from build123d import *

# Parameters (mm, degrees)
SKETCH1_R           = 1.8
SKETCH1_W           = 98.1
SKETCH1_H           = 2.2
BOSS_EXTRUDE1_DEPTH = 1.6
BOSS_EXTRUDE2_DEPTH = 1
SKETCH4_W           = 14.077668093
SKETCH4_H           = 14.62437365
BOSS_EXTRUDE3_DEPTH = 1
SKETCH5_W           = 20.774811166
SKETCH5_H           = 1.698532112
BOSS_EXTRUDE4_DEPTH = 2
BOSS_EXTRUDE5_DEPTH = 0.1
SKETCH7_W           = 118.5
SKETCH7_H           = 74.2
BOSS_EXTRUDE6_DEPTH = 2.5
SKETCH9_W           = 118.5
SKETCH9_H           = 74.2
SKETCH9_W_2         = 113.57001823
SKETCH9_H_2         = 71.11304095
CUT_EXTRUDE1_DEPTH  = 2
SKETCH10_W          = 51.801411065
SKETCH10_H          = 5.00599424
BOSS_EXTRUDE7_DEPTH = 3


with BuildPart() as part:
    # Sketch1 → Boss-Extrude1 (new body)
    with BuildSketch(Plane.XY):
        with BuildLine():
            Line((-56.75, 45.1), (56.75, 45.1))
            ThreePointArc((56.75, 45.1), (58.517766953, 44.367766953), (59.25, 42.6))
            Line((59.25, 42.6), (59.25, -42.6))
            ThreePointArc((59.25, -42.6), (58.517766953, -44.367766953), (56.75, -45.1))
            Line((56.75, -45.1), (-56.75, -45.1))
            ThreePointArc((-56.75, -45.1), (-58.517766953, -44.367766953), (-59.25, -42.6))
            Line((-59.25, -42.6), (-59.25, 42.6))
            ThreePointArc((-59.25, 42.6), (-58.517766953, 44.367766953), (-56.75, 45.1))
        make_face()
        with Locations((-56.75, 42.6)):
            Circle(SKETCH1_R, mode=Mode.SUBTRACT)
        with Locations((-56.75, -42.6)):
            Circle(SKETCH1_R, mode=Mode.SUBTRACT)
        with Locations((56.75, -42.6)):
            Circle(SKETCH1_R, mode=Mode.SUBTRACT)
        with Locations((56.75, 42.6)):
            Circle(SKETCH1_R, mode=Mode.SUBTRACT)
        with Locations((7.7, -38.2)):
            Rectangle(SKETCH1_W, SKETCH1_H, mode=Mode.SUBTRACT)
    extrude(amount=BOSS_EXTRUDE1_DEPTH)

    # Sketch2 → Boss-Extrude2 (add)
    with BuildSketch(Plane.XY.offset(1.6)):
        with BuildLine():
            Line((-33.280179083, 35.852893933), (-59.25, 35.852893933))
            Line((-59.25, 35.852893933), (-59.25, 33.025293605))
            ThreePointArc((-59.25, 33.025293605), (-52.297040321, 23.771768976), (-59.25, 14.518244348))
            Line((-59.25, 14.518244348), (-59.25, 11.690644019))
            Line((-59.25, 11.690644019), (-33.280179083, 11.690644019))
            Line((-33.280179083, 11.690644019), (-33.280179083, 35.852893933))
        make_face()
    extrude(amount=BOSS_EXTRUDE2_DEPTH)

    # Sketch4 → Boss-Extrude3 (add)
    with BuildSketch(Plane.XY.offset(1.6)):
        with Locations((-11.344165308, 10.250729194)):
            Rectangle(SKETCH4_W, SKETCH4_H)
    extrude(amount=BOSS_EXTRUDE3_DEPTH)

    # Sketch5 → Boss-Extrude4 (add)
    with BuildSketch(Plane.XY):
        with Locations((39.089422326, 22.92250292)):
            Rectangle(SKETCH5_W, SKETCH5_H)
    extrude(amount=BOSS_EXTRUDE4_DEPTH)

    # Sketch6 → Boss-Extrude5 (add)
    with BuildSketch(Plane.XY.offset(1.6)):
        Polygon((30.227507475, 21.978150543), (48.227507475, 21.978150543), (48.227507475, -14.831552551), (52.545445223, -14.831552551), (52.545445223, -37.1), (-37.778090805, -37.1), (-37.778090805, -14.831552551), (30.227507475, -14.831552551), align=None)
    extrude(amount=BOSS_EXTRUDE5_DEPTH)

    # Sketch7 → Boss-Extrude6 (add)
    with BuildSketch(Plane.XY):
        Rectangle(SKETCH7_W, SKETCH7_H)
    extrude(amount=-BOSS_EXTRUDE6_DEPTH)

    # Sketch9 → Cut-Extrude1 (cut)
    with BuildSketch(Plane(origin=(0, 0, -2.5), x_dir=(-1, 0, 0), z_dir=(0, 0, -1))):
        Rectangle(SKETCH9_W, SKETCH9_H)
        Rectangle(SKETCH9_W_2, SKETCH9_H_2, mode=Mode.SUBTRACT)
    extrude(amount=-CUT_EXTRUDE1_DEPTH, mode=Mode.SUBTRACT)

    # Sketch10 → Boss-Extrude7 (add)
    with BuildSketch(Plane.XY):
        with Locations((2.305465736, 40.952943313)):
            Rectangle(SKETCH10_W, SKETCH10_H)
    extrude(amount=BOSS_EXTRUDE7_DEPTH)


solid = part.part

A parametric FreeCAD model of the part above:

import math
import FreeCAD as App
import Part
import Sketcher

V = App.Vector


def add_polygon(sketch, points):
    """Adds a closed chain of lines whose ends are joined by coincident constraints."""
    first, n = sketch.GeometryCount, len(points)
    for a, b in zip(points, points[1:] + points[:1]):
        sketch.addGeometry(Part.LineSegment(App.Vector(*a, 0), App.Vector(*b, 0)), False)
    for i in range(n):
        sketch.addConstraint(Sketcher.Constraint("Coincident", first + i, 2, first + (i + 1) % n, 1))

doc = App.newDocument("Part")
body = doc.addObject("PartDesign::Body", "Body")

sketch1 = body.newObject("Sketcher::SketchObject", "Sketch")
sketch1.AttachmentSupport = (doc.getObject("XY_Plane"), [""])
sketch1.MapMode = "FlatFace"
sketch1.addGeometry(Part.LineSegment(V(56.75, 45.1, 0), V(-56.75, 45.1, 0)), False)
sketch1.addGeometry(Part.ArcOfCircle(Part.Circle(V(-56.75, 42.6, 0), V(0, 0, 1), 2.5), math.radians(90), math.radians(180)), False)
sketch1.addGeometry(Part.LineSegment(V(-59.25, 42.6, 0), V(-59.25, -42.6, 0)), False)
sketch1.addGeometry(Part.ArcOfCircle(Part.Circle(V(-56.75, -42.6, 0), V(0, 0, 1), 2.5), math.radians(180), math.radians(270)), False)
sketch1.addGeometry(Part.LineSegment(V(-56.75, -45.1, 0), V(56.75, -45.1, 0)), False)
sketch1.addGeometry(Part.ArcOfCircle(Part.Circle(V(56.75, -42.6, 0), V(0, 0, 1), 2.5), math.radians(-90), math.radians(0)), False)
sketch1.addGeometry(Part.LineSegment(V(59.25, -42.6, 0), V(59.25, 42.6, 0)), False)
sketch1.addGeometry(Part.ArcOfCircle(Part.Circle(V(56.75, 42.6, 0), V(0, 0, 1), 2.5), math.radians(0), math.radians(90)), False)
sketch1.addGeometry(Part.Circle(V(56.75, -42.6, 0), V(0, 0, 1), 1.8), False)
add_polygon(sketch1, [(-41.35, -39.3), (-41.35, -37.1), (56.75, -37.1), (56.75, -39.3)])
sketch1.addGeometry(Part.Circle(V(-56.75, -42.6, 0), V(0, 0, 1), 1.8), False)
sketch1.addGeometry(Part.Circle(V(56.75, 42.6, 0), V(0, 0, 1), 1.8), False)
sketch1.addGeometry(Part.Circle(V(-56.75, 42.6, 0), V(0, 0, 1), 1.8), False)
sketch1.addConstraint([
    Sketcher.Constraint("Tangent", 0, 2, 1, 1),
    Sketcher.Constraint("Tangent", 1, 2, 2, 1),
    Sketcher.Constraint("Tangent", 2, 2, 3, 1),
    Sketcher.Constraint("Tangent", 3, 2, 4, 1),
    Sketcher.Constraint("Tangent", 4, 2, 5, 1),
    Sketcher.Constraint("Tangent", 5, 2, 6, 1),
    Sketcher.Constraint("Tangent", 6, 2, 7, 1),
    Sketcher.Constraint("Tangent", 7, 2, 0, 1),
    Sketcher.Constraint("Horizontal", 0),
    Sketcher.Constraint("Vertical", 2),
    Sketcher.Constraint("Horizontal", 4),
    Sketcher.Constraint("Vertical", 6),
    Sketcher.Constraint("Vertical", 9),
    Sketcher.Constraint("Horizontal", 10),
    Sketcher.Constraint("Vertical", 11),
    Sketcher.Constraint("Horizontal", 12),
    Sketcher.Constraint("Coincident", 8, 3, 5, 3),
    Sketcher.Constraint("Coincident", 13, 3, 3, 3),
    Sketcher.Constraint("Coincident", 14, 3, 7, 3),
    Sketcher.Constraint("Coincident", 15, 3, 1, 3),
    Sketcher.Constraint("Equal", 1, 3),
    Sketcher.Constraint("Equal", 3, 5),
    Sketcher.Constraint("Equal", 5, 7),
    Sketcher.Constraint("Equal", 8, 13),
    Sketcher.Constraint("Equal", 13, 14),
    Sketcher.Constraint("Equal", 14, 15),
    Sketcher.Constraint("Symmetric", 1, 3, 5, 3, -1, 1),
    Sketcher.Constraint("Vertical", 7, 2, 10, 2),
    Sketcher.Constraint("Diameter", 8, 3.6),
    Sketcher.Constraint("Radius", 1, 2.5),
    Sketcher.Constraint("DistanceX", 0, 2, 0, 1, 113.5),
    Sketcher.Constraint("DistanceX", 10, 1, 10, 2, 98.1),
    Sketcher.Constraint("DistanceY", 2, 2, 2, 1, 85.2),
    Sketcher.Constraint("DistanceY", 9, 1, 9, 2, 2.2),
    Sketcher.Constraint("DistanceY", 3, 2, 9, 2, 8.0),
])
pad1 = body.newObject("PartDesign::Pad", "Pad")
pad1.Profile = sketch1
pad1.Length = 1.6

sketch2 = body.newObject("Sketcher::SketchObject", "Sketch001")
sketch2.AttachmentSupport = (doc.getObject("XY_Plane"), [""])
sketch2.MapMode = "FlatFace"
sketch2.AttachmentOffset = App.Placement(V(0, 0, 1.6), App.Rotation())
sketch2.addGeometry([
    Part.LineSegment(V(-33.280179, 35.852894, 0), V(-59.25, 35.852894, 0)),
    Part.LineSegment(V(-59.25, 35.852894, 0), V(-59.25, 33.025294, 0)),
    Part.ArcOfCircle(Part.Circle(V(-61.931165, 23.771769, 0), V(0, 0, 1), 9.634125), math.radians(-73.841302), math.radians(73.841302)),
    Part.LineSegment(V(-59.25, 14.518244, 0), V(-59.25, 11.690644, 0)),
    Part.LineSegment(V(-59.25, 11.690644, 0), V(-33.280179, 11.690644, 0)),
    Part.LineSegment(V(-33.280179, 11.690644, 0), V(-33.280179, 35.852894, 0)),
], False)
sketch2.addConstraint([
    Sketcher.Constraint("Coincident", 0, 2, 1, 1),
    Sketcher.Constraint("Coincident", 1, 2, 2, 2),
    Sketcher.Constraint("Coincident", 2, 1, 3, 1),
    Sketcher.Constraint("Coincident", 3, 2, 4, 1),
    Sketcher.Constraint("Coincident", 4, 2, 5, 1),
    Sketcher.Constraint("Coincident", 5, 2, 0, 1),
    Sketcher.Constraint("Horizontal", 0),
    Sketcher.Constraint("Vertical", 1),
    Sketcher.Constraint("Vertical", 3),
    Sketcher.Constraint("Horizontal", 4),
    Sketcher.Constraint("Vertical", 5),
    Sketcher.Constraint("Vertical", 1, 2, 2, 1),
    Sketcher.Constraint("Equal", 1, 3),
    Sketcher.Constraint("DistanceX", 0, 2, -1, 1, 59.25),
    Sketcher.Constraint("DistanceY", 1, 2, 1, 1, 2.8276),
    Sketcher.Constraint("Radius", 2, 9.634125),
    Sketcher.Constraint("DistanceX", 0, 2, 0, 1, 25.969821),
    Sketcher.Constraint("DistanceY", 5, 1, 5, 2, 24.16225),
    Sketcher.Constraint("DistanceY", -1, 1, 2, 3, 23.771769),
])
pad2 = body.newObject("PartDesign::Pad", "Pad001")
pad2.Profile = sketch2
pad2.Length = 1

sketch3 = body.newObject("Sketcher::SketchObject", "Sketch002")
sketch3.AttachmentSupport = (doc.getObject("XY_Plane"), [""])
sketch3.MapMode = "FlatFace"
sketch3.AttachmentOffset = App.Placement(V(0, 0, 1.6), App.Rotation())
add_polygon(sketch3, [(-18.382999, 17.562916), (-18.382999, 2.938542), (-4.305331, 2.938542), (-4.305331, 17.562916)])
sketch3.addConstraint([
    Sketcher.Constraint("Vertical", 0),
    Sketcher.Constraint("Horizontal", 1),
    Sketcher.Constraint("Vertical", 2),
    Sketcher.Constraint("Horizontal", 3),
    Sketcher.Constraint("DistanceX", 0, 2, -1, 1, 18.382999),
    Sketcher.Constraint("DistanceX", 1, 1, 1, 2, 14.077668),
    Sketcher.Constraint("DistanceY", 0, 2, 0, 1, 14.624374),
    Sketcher.Constraint("DistanceY", -1, 1, 0, 2, 2.938542),
])
pad3 = body.newObject("PartDesign::Pad", "Pad002")
pad3.Profile = sketch3
pad3.Length = 1

sketch4 = body.newObject("Sketcher::SketchObject", "Sketch003")
sketch4.AttachmentSupport = (doc.getObject("XY_Plane"), [""])
sketch4.MapMode = "FlatFace"
add_polygon(sketch4, [(28.702017, 23.771769), (28.702017, 22.073237), (49.476828, 22.073237), (49.476828, 23.771769)])
sketch4.addConstraint([
    Sketcher.Constraint("Vertical", 0),
    Sketcher.Constraint("Horizontal", 1),
    Sketcher.Constraint("Vertical", 2),
    Sketcher.Constraint("Horizontal", 3),
    Sketcher.Constraint("DistanceX", 1, 1, 1, 2, 20.774811),
    Sketcher.Constraint("DistanceY", 0, 2, 0, 1, 1.698532),
    Sketcher.Constraint("DistanceY", -1, 1, 2, 2, 23.771769),
    Sketcher.Constraint("DistanceX", -1, 1, 0, 2, 28.702017),
])
pad4 = body.newObject("PartDesign::Pad", "Pad003")
pad4.Profile = sketch4
pad4.Length = 2

sketch5 = body.newObject("Sketcher::SketchObject", "Sketch004")
sketch5.AttachmentSupport = (doc.getObject("XY_Plane"), [""])
sketch5.MapMode = "FlatFace"
sketch5.AttachmentOffset = App.Placement(V(0, 0, 1.6), App.Rotation())
add_polygon(sketch5, [(48.227507, 21.978151), (30.227507, 21.978151), (30.227507, -14.831553), (-37.778091, -14.831553), (-37.778091, -37.1), (52.545445, -37.1), (52.545445, -14.831553), (48.227507, -14.831553)])
sketch5.addConstraint([
    Sketcher.Constraint("Horizontal", 0),
    Sketcher.Constraint("Vertical", 1),
    Sketcher.Constraint("Horizontal", 2),
    Sketcher.Constraint("Vertical", 3),
    Sketcher.Constraint("Horizontal", 4),
    Sketcher.Constraint("Vertical", 5),
    Sketcher.Constraint("Horizontal", 6),
    Sketcher.Constraint("Vertical", 7),
    Sketcher.Constraint("Horizontal", 2, 2, 5, 2),
    Sketcher.Constraint("DistanceX", 0, 2, 0, 1, 18.0),
    Sketcher.Constraint("DistanceY", 3, 2, -1, 1, 37.1),
    Sketcher.Constraint("DistanceX", 2, 2, 2, 1, 68.005598),
    Sketcher.Constraint("DistanceX", 4, 1, 4, 2, 90.323536),
    Sketcher.Constraint("DistanceY", 1, 2, 1, 1, 36.809703),
    Sketcher.Constraint("DistanceY", 3, 2, 3, 1, 22.268447),
    Sketcher.Constraint("DistanceX", 2, 2, -1, 1, 37.778091),
])
pad5 = body.newObject("PartDesign::Pad", "Pad004")
pad5.Profile = sketch5
pad5.Length = 0.1

sketch6 = body.newObject("Sketcher::SketchObject", "Sketch005")
sketch6.AttachmentSupport = (doc.getObject("XY_Plane"), [""])
sketch6.MapMode = "FlatFace"
add_polygon(sketch6, [(-59.25, 37.1), (-59.25, -37.1), (59.25, -37.1), (59.25, 37.1)])
sketch6.addConstraint([
    Sketcher.Constraint("Vertical", 0),
    Sketcher.Constraint("Horizontal", 1),
    Sketcher.Constraint("Vertical", 2),
    Sketcher.Constraint("Horizontal", 3),
    Sketcher.Constraint("Symmetric", 0, 2, 2, 2, -1, 1),
    Sketcher.Constraint("DistanceX", 1, 1, 1, 2, 118.5),
    Sketcher.Constraint("DistanceY", 0, 2, 0, 1, 74.2),
])
pad6 = body.newObject("PartDesign::Pad", "Pad005")
pad6.Profile = sketch6
pad6.Length = 2.5
pad6.Reversed = True

sketch7 = body.newObject("Sketcher::SketchObject", "Sketch006")
sketch7.AttachmentSupport = (doc.getObject("XY_Plane"), [""])
sketch7.MapMode = "FlatFace"
sketch7.AttachmentOffset = App.Placement(V(0, 0, -2.5), App.Rotation())
add_polygon(sketch7, [(59.25, 37.1), (59.25, -37.1), (-59.25, -37.1), (-59.25, 37.1)])
add_polygon(sketch7, [(-56.785009, -35.55652), (56.785009, -35.55652), (56.785009, 35.55652), (-56.785009, 35.55652)])
sketch7.addConstraint([
    Sketcher.Constraint("Vertical", 0),
    Sketcher.Constraint("Horizontal", 1),
    Sketcher.Constraint("Vertical", 2),
    Sketcher.Constraint("Horizontal", 3),
    Sketcher.Constraint("Horizontal", 4),
    Sketcher.Constraint("Vertical", 5),
    Sketcher.Constraint("Horizontal", 6),
    Sketcher.Constraint("Vertical", 7),
    Sketcher.Constraint("Symmetric", 0, 2, 2, 2, -1, 1),
    Sketcher.Constraint("Symmetric", 4, 2, 6, 2, -1, 1),
    Sketcher.Constraint("DistanceX", 1, 2, 1, 1, 118.5),
    Sketcher.Constraint("DistanceY", 0, 2, 0, 1, 74.2),
    Sketcher.Constraint("DistanceX", 4, 1, 4, 2, 113.570018),
    Sketcher.Constraint("DistanceY", 5, 1, 5, 2, 71.113041),
])
pocket1 = body.newObject("PartDesign::Pocket", "Pocket")
pocket1.Profile = sketch7
pocket1.Length = 2
pocket1.Reversed = True

sketch8 = body.newObject("Sketcher::SketchObject", "Sketch007")
sketch8.AttachmentSupport = (doc.getObject("XY_Plane"), [""])
sketch8.MapMode = "FlatFace"
add_polygon(sketch8, [(-23.59524, 43.45594), (-23.59524, 38.449946), (28.206171, 38.449946), (28.206171, 43.45594)])
sketch8.addConstraint([
    Sketcher.Constraint("Vertical", 0),
    Sketcher.Constraint("Horizontal", 1),
    Sketcher.Constraint("Vertical", 2),
    Sketcher.Constraint("Horizontal", 3),
    Sketcher.Constraint("DistanceX", 1, 1, 1, 2, 51.801411),
    Sketcher.Constraint("DistanceY", 0, 2, 0, 1, 5.005994),
    Sketcher.Constraint("DistanceX", 0, 2, -1, 1, 23.59524),
    Sketcher.Constraint("DistanceY", -1, 1, 2, 2, 43.45594),
])
pad7 = body.newObject("PartDesign::Pad", "Pad006")
pad7.Profile = sketch8
pad7.Length = 3

doc.recompute()
